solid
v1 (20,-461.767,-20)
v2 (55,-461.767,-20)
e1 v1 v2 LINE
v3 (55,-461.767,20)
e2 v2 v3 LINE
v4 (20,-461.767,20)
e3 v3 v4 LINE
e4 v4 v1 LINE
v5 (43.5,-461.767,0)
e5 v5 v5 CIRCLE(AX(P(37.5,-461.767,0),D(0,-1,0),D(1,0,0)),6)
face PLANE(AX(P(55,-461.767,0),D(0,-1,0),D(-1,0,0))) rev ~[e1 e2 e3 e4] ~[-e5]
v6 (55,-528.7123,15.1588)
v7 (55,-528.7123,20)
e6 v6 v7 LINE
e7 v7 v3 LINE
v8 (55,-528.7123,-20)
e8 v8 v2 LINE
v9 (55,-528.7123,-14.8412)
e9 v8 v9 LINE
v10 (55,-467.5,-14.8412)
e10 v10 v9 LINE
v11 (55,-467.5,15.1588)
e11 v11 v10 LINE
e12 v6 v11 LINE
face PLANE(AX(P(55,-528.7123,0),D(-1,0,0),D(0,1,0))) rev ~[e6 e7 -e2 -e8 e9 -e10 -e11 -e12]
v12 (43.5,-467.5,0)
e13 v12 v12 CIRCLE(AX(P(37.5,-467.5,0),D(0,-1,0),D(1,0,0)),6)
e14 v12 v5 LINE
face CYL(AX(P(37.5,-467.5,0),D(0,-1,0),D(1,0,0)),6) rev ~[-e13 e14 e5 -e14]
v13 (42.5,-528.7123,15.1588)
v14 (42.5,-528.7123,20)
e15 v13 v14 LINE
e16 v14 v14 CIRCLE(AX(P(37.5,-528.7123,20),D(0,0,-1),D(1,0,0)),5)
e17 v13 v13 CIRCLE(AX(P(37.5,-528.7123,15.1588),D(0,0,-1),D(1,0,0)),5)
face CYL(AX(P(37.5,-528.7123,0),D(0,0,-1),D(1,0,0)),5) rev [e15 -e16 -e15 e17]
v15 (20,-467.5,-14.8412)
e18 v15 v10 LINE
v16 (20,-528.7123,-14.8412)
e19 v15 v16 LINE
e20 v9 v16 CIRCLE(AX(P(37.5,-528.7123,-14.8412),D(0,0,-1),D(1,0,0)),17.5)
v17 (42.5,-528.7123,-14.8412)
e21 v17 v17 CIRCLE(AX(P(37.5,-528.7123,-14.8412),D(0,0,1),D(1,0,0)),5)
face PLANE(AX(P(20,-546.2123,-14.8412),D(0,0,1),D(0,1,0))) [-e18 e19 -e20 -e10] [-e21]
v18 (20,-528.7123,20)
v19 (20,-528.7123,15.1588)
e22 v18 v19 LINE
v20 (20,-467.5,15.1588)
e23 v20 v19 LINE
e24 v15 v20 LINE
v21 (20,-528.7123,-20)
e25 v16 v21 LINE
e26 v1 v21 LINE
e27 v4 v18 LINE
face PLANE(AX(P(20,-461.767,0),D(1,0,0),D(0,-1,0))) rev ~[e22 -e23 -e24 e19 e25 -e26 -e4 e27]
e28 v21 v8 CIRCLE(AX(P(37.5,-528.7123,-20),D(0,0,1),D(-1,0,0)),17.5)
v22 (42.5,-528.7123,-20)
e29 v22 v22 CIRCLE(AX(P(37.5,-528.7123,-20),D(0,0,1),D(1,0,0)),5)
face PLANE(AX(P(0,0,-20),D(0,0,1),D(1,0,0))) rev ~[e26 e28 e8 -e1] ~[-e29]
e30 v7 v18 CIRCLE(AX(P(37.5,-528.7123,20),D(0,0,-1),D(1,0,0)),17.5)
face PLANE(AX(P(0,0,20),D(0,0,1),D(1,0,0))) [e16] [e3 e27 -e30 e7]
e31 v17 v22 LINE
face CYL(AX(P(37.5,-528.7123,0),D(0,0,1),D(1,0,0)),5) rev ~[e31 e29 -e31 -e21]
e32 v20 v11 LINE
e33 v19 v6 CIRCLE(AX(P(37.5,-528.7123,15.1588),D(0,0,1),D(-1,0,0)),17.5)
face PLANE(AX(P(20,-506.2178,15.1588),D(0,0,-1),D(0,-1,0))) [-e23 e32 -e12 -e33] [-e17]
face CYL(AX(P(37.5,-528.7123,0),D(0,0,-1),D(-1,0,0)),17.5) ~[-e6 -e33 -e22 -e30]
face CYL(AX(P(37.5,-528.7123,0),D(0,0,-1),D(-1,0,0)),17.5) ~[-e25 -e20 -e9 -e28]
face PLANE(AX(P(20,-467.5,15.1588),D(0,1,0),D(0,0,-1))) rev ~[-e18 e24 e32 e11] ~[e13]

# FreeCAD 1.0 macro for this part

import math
import FreeCAD as App
import Part
import Sketcher
Q = App.Units.Quantity

doc = App.newDocument("Part")
body = doc.addObject("PartDesign::Body", "Body")

# Sketch on XY plane
sketch1 = body.newObject("Sketcher::SketchObject", "Sketch")
sketch1.AttachmentSupport = (doc.getObject("XY_Plane"), [""])
sketch1.MapMode = "FlatFace"
sketch1.addGeometry([
    Part.LineSegment(App.Vector(55, -528.7123, 0), App.Vector(55, -461.767, 0)),  # 0
    Part.LineSegment(App.Vector(55, -461.767, 0), App.Vector(20, -461.767, 0)),  # 1
    Part.LineSegment(App.Vector(20, -461.767, 0), App.Vector(20, -528.7123, 0)),  # 2
    Part.ArcOfCircle(Part.Circle(App.Vector(37.5, -528.7123, 0), App.Vector(0, 0, 1), 17.5), math.radians(180), math.radians(360)),  # 3
    Part.Circle(App.Vector(37.5, -528.7123, 0), App.Vector(0, 0, 1), 5),  # 4
], False)
sketch1.addConstraint([
    Sketcher.Constraint("Coincident", 0, 2, 1, 1),
    Sketcher.Constraint("Coincident", 1, 2, 2, 1),
    Sketcher.Constraint("Tangent", 2, 2, 3, 1),
    Sketcher.Constraint("Tangent", 3, 2, 0, 1),
    Sketcher.Constraint("Vertical", 0),
    Sketcher.Constraint("Horizontal", 1),
    Sketcher.Constraint("Vertical", 2),
    Sketcher.Constraint("Coincident", 4, 3, 3, 3),
    Sketcher.Constraint("Radius", 3, Q("17.5 mm")),
    Sketcher.Constraint("Diameter", 4, Q("10 mm")),
    Sketcher.Constraint("DistanceX", -1, 1, 0, 2, Q("55 mm")),
    Sketcher.Constraint("DistanceY", 0, 1, 0, 2, Q("66.9453 mm")),
    Sketcher.Constraint("DistanceY", 0, 2, -1, 1, Q("461.767 mm")),
])
pad1 = body.newObject("PartDesign::Pad", "Pad")
pad1.Profile = sketch1
pad1.Length = 40
pad1.Midplane = True

# Sketch on YZ plane
sketch2 = body.newObject("Sketcher::SketchObject", "Sketch001")
sketch2.AttachmentSupport = (doc.getObject("YZ_Plane"), [""])
sketch2.MapMode = "FlatFace"
sketch2.AttachmentOffset = App.Placement(App.Vector(0, 0, 20), App.Rotation())
sketch2.addGeometry([
    Part.LineSegment(App.Vector(-467.5, 15.1588, 0), App.Vector(-467.5, -14.8412, 0)),
    Part.LineSegment(App.Vector(-467.5, -14.8412, 0), App.Vector(-546.2123, -14.8412, 0)),
    Part.LineSegment(App.Vector(-546.2123, -14.8412, 0), App.Vector(-546.2123, 15.1588, 0)),
    Part.LineSegment(App.Vector(-546.2123, 15.1588, 0), App.Vector(-467.5, 15.1588, 0)),
], False)
sketch2.addConstraint([
    Sketcher.Constraint("Coincident", 0, 2, 1, 1),
    Sketcher.Constraint("Coincident", 1, 2, 2, 1),
    Sketcher.Constraint("Coincident", 2, 2, 3, 1),
    Sketcher.Constraint("Coincident", 3, 2, 0, 1),
    Sketcher.Constraint("Vertical", 0),
    Sketcher.Constraint("Horizontal", 1),
    Sketcher.Constraint("Vertical", 2),
    Sketcher.Constraint("Horizontal", 3),
    Sketcher.Constraint("DistanceY", 0, 2, 0, 1, Q("30 mm")),
    Sketcher.Constraint("DistanceX", 0, 2, -1, 1, Q("467.5 mm")),
    Sketcher.Constraint("DistanceX", 1, 2, 1, 1, Q("78.7123 mm")),
    Sketcher.Constraint("DistanceY", 0, 2, -1, 1, Q("14.8412 mm")),
])
pocket1 = body.newObject("PartDesign::Pocket", "Pocket")
pocket1.Profile = sketch2
pocket1.Type = "ThroughAll"
pocket1.Reversed = True

# Sketch on XZ plane
sketch3 = body.newObject("Sketcher::SketchObject", "Sketch002")
sketch3.AttachmentSupport = (doc.getObject("XZ_Plane"), [""])
sketch3.MapMode = "FlatFace"
sketch3.AttachmentOffset = App.Placement(App.Vector(0, 0, 467.5), App.Rotation())
sketch3.addGeometry(Part.Circle(App.Vector(37.5, 0, 0), App.Vector(0, 0, 1), 6), False)
sketch3.addConstraint([
    Sketcher.Constraint("PointOnObject", 0, 3, -1),
    Sketcher.Constraint("Diameter", 0, Q("12 mm")),
    Sketcher.Constraint("DistanceX", -1, 1, 0, 3, Q("37.5 mm")),
])
pocket2 = body.newObject("PartDesign::Pocket", "Pocket001")
pocket2.Profile = sketch3
pocket2.Type = "ThroughAll"

doc.recompute()
